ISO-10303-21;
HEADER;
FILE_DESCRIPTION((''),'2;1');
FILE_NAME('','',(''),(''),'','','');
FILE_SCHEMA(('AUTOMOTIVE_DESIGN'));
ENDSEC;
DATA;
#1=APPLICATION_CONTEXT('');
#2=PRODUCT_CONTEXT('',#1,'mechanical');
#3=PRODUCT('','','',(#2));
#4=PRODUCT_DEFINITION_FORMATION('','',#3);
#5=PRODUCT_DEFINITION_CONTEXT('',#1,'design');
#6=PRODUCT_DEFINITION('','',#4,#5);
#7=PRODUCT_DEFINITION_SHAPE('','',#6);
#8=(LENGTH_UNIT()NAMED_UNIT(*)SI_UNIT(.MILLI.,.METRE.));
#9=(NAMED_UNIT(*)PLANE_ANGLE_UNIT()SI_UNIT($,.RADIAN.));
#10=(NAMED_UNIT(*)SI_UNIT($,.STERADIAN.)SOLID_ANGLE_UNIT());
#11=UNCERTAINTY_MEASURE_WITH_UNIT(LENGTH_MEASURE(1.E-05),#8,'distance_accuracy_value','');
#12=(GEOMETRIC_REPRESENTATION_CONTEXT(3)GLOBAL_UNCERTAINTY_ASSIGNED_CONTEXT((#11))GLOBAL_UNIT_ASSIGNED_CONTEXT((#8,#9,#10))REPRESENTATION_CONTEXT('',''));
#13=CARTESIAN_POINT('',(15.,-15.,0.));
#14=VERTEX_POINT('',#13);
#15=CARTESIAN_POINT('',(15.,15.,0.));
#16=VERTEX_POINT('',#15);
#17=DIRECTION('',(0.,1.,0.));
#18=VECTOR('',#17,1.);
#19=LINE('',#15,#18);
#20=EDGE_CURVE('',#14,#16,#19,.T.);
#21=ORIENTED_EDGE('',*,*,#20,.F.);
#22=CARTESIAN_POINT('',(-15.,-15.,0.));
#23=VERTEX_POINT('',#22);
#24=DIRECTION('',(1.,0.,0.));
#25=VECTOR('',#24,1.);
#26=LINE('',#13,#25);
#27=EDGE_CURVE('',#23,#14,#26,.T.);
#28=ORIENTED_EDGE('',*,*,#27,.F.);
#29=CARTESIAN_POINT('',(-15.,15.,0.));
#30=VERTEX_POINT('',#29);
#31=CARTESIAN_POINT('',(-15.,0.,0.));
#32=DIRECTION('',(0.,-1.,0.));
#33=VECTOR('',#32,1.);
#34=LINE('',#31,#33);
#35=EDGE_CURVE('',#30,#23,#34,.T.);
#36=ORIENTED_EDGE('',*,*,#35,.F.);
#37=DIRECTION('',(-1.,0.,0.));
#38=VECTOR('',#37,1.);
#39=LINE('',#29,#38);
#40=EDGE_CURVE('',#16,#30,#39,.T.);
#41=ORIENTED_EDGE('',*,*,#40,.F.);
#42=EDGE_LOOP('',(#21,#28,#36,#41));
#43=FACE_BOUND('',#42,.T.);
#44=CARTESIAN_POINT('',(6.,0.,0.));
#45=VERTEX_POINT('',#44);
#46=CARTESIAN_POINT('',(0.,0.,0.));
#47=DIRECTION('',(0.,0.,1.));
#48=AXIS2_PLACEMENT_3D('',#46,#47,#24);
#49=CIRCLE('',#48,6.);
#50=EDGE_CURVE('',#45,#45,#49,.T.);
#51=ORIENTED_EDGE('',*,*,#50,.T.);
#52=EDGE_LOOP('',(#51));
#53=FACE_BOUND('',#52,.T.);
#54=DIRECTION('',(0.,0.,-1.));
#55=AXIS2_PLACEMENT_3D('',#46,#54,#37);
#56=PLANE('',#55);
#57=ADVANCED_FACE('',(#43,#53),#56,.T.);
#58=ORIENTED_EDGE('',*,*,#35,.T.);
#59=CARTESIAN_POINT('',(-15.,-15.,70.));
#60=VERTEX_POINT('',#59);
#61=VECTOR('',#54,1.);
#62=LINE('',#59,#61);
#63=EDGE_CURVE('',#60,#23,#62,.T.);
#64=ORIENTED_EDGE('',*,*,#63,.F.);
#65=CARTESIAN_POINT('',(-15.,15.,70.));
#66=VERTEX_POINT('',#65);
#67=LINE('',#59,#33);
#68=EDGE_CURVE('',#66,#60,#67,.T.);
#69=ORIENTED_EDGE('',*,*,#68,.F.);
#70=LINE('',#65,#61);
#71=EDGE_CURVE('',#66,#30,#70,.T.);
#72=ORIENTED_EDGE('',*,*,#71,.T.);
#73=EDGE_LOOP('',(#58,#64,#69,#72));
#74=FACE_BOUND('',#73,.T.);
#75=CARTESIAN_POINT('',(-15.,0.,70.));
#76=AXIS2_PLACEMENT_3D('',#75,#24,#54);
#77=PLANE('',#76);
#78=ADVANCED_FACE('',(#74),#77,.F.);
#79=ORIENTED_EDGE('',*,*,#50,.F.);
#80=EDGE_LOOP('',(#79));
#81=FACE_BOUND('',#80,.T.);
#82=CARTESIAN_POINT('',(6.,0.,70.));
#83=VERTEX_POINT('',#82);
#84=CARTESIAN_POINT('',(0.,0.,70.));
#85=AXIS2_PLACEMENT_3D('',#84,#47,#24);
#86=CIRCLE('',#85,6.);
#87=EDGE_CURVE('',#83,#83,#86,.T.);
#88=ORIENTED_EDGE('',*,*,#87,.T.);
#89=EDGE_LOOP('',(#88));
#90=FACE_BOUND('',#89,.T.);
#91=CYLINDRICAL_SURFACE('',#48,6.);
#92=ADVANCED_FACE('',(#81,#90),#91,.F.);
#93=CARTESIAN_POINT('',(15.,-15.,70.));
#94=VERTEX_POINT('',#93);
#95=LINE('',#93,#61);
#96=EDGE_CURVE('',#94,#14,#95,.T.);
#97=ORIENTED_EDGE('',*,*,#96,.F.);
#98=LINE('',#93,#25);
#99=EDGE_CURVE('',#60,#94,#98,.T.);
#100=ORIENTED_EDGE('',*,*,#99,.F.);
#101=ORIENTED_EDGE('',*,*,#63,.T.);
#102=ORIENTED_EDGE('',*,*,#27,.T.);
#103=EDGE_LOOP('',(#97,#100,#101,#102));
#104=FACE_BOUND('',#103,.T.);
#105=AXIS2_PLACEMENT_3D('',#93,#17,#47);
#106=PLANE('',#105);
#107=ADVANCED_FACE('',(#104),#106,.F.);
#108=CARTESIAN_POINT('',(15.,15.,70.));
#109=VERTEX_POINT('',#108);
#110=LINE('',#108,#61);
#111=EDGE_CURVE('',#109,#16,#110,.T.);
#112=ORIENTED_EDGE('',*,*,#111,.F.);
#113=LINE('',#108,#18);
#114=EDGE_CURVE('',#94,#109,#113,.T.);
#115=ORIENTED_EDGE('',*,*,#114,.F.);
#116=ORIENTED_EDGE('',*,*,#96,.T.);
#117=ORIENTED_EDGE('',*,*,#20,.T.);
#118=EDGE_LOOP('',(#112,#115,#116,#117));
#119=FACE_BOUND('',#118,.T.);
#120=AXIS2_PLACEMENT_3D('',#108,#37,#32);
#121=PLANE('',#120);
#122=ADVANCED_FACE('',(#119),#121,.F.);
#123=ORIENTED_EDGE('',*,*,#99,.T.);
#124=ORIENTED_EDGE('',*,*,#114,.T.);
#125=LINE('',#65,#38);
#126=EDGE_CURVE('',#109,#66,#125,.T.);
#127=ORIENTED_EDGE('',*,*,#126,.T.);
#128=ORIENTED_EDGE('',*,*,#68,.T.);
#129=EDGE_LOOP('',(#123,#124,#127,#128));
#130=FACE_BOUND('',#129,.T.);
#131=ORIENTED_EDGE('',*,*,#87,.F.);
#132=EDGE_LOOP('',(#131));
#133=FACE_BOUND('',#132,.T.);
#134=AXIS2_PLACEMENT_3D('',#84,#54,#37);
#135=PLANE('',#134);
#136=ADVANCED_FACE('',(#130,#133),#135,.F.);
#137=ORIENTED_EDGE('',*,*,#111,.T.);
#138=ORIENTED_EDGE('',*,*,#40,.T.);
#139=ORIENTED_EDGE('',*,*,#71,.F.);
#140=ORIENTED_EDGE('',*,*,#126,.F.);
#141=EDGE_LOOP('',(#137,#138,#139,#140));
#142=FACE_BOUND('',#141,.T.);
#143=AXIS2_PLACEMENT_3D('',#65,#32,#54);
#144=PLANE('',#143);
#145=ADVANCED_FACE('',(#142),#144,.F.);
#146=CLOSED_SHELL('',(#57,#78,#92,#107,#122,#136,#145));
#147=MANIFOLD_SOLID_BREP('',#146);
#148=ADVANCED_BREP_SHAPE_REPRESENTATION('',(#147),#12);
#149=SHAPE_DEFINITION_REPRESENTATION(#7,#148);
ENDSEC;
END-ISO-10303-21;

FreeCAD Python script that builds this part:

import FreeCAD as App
import Part
import Sketcher


def add_polygon(sketch, points):
    """Adds a closed chain of lines whose ends are joined by coincident constraints."""
    first, n = sketch.GeometryCount, len(points)
    for a, b in zip(points, points[1:] + points[:1]):
        sketch.addGeometry(Part.LineSegment(App.Vector(*a, 0), App.Vector(*b, 0)), False)
    for i in range(n):
        sketch.addConstraint(Sketcher.Constraint("Coincident", first + i, 2, first + (i + 1) % n, 1))

doc = App.newDocument("Part")
params = doc.addObject("Spreadsheet::Sheet", "Params")
for row, (alias, value) in enumerate([
    ("sketch1_width", "30 mm"),
    ("pad1_length", "70 mm"),
    ("sketch2_diameter", "12 mm"),
], start=1):
    params.set(f"A{row}", alias)
    params.set(f"B{row}", "=" + value)
    params.setAlias(f"B{row}", alias)

body = doc.addObject("PartDesign::Body", "Body")

sketch1 = doc.addObject("Sketcher::SketchObject", "Sketch")
body.addObject(sketch1)
sketch1.AttachmentSupport = (doc.XY_Plane, [""])
sketch1.MapMode = "FlatFace"
add_polygon(sketch1, [(-15, 15), (-15, -15), (15, -15), (15, 15)])
sketch1.addConstraint(Sketcher.Constraint("Vertical", 0))
sketch1.addConstraint(Sketcher.Constraint("Horizontal", 1))
sketch1.addConstraint(Sketcher.Constraint("Vertical", 2))
sketch1.addConstraint(Sketcher.Constraint("Horizontal", 3))
sketch1.addConstraint(Sketcher.Constraint("Symmetric", 0, 2, 2, 2, -1, 1))
sketch1.addConstraint(Sketcher.Constraint("Equal", 3, 0))
sketch1.addConstraint(Sketcher.Constraint("DistanceX", 1, 1, 1, 2, 30.0))
sketch1.setExpression("Constraints[10]", "Params.sketch1_width")
pad1 = doc.addObject("PartDesign::Pad", "Pad")
body.addObject(pad1)
pad1.Profile = sketch1
pad1.setExpression("Length", "Params.pad1_length")

sketch2 = doc.addObject("Sketcher::SketchObject", "Sketch001")
body.addObject(sketch2)
sketch2.AttachmentSupport = (doc.XY_Plane, [""])
sketch2.MapMode = "FlatFace"
sketch2.AttachmentOffset = App.Placement(App.Vector(0, 0, 70), App.Rotation())
sketch2.addGeometry(Part.Circle(App.Vector(0, 0, 0), App.Vector(0, 0, 1), 6), False)
sketch2.addConstraint(Sketcher.Constraint("Coincident", 0, 3, -1, 1))
sketch2.addConstraint(Sketcher.Constraint("Diameter", 0, 12.0))
sketch2.setExpression("Constraints[1]", "Params.sketch2_diameter")
pocket1 = doc.addObject("PartDesign::Pocket", "Pocket")
body.addObject(pocket1)
pocket1.Profile = sketch2
pocket1.Type = "ThroughAll"

doc.recompute()
